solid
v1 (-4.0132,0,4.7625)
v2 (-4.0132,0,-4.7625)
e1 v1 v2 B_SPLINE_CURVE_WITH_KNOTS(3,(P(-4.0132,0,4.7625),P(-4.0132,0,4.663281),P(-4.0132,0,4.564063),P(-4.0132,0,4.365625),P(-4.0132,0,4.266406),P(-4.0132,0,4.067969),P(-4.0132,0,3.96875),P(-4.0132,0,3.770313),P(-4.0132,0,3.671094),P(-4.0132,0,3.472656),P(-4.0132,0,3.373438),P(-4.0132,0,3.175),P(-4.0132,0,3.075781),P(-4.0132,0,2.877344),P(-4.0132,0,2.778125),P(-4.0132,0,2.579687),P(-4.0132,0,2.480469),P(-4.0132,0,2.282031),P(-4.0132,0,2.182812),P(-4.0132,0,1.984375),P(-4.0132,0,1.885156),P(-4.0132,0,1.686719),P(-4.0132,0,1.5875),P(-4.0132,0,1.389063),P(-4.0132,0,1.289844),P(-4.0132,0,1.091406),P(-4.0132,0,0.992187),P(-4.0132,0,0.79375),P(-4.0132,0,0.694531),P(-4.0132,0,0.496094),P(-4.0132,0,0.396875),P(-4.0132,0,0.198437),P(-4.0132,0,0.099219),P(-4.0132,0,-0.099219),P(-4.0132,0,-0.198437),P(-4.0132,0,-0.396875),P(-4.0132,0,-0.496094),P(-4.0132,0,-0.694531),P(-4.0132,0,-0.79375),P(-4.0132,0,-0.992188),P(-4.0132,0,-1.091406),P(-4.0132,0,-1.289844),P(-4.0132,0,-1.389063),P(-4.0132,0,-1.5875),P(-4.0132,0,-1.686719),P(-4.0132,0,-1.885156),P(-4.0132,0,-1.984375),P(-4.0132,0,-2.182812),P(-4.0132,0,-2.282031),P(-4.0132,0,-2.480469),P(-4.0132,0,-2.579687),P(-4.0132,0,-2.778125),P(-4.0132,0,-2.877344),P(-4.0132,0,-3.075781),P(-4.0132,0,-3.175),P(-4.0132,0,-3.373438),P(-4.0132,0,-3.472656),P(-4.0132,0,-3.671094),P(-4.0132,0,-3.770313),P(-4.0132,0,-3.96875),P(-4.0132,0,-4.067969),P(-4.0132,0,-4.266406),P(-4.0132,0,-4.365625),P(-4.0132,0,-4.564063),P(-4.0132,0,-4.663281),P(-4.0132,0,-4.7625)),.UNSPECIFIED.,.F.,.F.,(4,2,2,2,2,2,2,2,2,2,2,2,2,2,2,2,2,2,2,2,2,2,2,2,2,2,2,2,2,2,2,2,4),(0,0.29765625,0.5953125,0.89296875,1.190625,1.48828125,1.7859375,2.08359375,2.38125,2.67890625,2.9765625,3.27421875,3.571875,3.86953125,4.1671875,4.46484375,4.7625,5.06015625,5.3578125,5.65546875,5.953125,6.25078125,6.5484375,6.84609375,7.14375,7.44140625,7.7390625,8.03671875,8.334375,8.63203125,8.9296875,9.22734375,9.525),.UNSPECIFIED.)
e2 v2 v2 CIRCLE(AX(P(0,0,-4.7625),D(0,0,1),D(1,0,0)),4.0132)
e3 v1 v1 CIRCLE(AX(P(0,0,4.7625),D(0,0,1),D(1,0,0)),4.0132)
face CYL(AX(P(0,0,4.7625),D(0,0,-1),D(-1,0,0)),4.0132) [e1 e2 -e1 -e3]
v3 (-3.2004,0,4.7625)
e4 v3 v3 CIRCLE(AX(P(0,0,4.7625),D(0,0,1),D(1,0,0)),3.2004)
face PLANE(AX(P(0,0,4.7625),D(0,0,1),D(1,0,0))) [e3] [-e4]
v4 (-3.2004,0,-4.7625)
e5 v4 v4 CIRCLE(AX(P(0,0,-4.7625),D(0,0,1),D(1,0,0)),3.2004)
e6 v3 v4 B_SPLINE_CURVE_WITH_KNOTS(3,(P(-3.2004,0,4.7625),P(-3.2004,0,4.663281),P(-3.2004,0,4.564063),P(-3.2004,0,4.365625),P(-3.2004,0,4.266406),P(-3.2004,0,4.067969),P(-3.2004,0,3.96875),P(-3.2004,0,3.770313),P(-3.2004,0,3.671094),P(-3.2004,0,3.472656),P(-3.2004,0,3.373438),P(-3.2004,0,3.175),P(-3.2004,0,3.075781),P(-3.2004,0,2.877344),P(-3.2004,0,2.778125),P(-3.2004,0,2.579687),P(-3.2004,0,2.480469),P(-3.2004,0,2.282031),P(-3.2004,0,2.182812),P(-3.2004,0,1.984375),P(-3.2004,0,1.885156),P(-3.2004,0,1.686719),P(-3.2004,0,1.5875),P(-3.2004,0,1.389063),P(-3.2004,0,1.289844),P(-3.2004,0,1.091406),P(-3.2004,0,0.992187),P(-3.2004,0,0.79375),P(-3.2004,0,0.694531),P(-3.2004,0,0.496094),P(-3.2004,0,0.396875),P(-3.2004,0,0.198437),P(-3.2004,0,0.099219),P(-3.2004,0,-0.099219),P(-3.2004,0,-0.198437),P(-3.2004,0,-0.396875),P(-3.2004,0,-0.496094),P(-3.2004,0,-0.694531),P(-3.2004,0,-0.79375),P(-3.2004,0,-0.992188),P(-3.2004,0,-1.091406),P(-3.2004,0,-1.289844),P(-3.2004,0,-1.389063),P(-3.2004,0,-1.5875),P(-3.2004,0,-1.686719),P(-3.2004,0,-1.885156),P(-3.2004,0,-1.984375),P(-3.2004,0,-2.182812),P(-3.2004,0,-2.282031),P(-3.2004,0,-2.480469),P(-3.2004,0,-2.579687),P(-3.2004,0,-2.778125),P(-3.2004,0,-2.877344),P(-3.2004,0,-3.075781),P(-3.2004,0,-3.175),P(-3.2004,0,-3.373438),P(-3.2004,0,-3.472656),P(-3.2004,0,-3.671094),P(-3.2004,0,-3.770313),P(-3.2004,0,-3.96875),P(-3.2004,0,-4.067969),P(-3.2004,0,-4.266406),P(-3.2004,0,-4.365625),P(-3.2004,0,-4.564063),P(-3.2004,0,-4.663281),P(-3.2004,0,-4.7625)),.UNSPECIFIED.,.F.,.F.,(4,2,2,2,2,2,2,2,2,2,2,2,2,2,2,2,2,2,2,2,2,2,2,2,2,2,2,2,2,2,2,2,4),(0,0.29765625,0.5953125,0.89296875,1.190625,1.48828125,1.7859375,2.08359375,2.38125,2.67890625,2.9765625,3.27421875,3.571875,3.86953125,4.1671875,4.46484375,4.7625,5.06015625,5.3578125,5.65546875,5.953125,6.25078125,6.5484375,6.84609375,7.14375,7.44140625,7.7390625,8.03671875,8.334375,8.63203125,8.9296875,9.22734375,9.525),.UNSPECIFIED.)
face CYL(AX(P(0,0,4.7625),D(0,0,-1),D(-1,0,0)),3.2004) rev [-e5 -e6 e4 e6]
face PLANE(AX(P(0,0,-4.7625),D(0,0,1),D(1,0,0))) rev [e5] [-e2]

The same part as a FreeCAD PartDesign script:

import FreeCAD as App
import Part
import Sketcher
Q = App.Units.Quantity

doc = App.newDocument("Part")
body = doc.addObject("PartDesign::Body", "Body")

# Sketch on XY plane
sketch1 = body.newObject("Sketcher::SketchObject", "Sketch")
sketch1.AttachmentSupport = (doc.getObject("XY_Plane"), [""])
sketch1.MapMode = "FlatFace"
sketch1.addGeometry(Part.Circle(App.Vector(0, 0, 0), App.Vector(0, 0, 1), 4), False)
sketch1.addGeometry(Part.Circle(App.Vector(0, 0, 0), App.Vector(0, 0, 1), 3.2), False)
sketch1.addConstraint(Sketcher.Constraint("Coincident", 0, 3, -1, 1))
sketch1.addConstraint(Sketcher.Constraint("Coincident", 1, 3, -1, 1))
sketch1.addConstraint(Sketcher.Constraint("Diameter", 0, Q("0.316 in")))
sketch1.addConstraint(Sketcher.Constraint("Diameter", 1, Q("0.252 in")))
pad1 = body.newObject("PartDesign::Pad", "Pad")
pad1.Profile = sketch1
pad1.Length = Q("0.375 in")
pad1.Midplane = True

doc.recompute()
